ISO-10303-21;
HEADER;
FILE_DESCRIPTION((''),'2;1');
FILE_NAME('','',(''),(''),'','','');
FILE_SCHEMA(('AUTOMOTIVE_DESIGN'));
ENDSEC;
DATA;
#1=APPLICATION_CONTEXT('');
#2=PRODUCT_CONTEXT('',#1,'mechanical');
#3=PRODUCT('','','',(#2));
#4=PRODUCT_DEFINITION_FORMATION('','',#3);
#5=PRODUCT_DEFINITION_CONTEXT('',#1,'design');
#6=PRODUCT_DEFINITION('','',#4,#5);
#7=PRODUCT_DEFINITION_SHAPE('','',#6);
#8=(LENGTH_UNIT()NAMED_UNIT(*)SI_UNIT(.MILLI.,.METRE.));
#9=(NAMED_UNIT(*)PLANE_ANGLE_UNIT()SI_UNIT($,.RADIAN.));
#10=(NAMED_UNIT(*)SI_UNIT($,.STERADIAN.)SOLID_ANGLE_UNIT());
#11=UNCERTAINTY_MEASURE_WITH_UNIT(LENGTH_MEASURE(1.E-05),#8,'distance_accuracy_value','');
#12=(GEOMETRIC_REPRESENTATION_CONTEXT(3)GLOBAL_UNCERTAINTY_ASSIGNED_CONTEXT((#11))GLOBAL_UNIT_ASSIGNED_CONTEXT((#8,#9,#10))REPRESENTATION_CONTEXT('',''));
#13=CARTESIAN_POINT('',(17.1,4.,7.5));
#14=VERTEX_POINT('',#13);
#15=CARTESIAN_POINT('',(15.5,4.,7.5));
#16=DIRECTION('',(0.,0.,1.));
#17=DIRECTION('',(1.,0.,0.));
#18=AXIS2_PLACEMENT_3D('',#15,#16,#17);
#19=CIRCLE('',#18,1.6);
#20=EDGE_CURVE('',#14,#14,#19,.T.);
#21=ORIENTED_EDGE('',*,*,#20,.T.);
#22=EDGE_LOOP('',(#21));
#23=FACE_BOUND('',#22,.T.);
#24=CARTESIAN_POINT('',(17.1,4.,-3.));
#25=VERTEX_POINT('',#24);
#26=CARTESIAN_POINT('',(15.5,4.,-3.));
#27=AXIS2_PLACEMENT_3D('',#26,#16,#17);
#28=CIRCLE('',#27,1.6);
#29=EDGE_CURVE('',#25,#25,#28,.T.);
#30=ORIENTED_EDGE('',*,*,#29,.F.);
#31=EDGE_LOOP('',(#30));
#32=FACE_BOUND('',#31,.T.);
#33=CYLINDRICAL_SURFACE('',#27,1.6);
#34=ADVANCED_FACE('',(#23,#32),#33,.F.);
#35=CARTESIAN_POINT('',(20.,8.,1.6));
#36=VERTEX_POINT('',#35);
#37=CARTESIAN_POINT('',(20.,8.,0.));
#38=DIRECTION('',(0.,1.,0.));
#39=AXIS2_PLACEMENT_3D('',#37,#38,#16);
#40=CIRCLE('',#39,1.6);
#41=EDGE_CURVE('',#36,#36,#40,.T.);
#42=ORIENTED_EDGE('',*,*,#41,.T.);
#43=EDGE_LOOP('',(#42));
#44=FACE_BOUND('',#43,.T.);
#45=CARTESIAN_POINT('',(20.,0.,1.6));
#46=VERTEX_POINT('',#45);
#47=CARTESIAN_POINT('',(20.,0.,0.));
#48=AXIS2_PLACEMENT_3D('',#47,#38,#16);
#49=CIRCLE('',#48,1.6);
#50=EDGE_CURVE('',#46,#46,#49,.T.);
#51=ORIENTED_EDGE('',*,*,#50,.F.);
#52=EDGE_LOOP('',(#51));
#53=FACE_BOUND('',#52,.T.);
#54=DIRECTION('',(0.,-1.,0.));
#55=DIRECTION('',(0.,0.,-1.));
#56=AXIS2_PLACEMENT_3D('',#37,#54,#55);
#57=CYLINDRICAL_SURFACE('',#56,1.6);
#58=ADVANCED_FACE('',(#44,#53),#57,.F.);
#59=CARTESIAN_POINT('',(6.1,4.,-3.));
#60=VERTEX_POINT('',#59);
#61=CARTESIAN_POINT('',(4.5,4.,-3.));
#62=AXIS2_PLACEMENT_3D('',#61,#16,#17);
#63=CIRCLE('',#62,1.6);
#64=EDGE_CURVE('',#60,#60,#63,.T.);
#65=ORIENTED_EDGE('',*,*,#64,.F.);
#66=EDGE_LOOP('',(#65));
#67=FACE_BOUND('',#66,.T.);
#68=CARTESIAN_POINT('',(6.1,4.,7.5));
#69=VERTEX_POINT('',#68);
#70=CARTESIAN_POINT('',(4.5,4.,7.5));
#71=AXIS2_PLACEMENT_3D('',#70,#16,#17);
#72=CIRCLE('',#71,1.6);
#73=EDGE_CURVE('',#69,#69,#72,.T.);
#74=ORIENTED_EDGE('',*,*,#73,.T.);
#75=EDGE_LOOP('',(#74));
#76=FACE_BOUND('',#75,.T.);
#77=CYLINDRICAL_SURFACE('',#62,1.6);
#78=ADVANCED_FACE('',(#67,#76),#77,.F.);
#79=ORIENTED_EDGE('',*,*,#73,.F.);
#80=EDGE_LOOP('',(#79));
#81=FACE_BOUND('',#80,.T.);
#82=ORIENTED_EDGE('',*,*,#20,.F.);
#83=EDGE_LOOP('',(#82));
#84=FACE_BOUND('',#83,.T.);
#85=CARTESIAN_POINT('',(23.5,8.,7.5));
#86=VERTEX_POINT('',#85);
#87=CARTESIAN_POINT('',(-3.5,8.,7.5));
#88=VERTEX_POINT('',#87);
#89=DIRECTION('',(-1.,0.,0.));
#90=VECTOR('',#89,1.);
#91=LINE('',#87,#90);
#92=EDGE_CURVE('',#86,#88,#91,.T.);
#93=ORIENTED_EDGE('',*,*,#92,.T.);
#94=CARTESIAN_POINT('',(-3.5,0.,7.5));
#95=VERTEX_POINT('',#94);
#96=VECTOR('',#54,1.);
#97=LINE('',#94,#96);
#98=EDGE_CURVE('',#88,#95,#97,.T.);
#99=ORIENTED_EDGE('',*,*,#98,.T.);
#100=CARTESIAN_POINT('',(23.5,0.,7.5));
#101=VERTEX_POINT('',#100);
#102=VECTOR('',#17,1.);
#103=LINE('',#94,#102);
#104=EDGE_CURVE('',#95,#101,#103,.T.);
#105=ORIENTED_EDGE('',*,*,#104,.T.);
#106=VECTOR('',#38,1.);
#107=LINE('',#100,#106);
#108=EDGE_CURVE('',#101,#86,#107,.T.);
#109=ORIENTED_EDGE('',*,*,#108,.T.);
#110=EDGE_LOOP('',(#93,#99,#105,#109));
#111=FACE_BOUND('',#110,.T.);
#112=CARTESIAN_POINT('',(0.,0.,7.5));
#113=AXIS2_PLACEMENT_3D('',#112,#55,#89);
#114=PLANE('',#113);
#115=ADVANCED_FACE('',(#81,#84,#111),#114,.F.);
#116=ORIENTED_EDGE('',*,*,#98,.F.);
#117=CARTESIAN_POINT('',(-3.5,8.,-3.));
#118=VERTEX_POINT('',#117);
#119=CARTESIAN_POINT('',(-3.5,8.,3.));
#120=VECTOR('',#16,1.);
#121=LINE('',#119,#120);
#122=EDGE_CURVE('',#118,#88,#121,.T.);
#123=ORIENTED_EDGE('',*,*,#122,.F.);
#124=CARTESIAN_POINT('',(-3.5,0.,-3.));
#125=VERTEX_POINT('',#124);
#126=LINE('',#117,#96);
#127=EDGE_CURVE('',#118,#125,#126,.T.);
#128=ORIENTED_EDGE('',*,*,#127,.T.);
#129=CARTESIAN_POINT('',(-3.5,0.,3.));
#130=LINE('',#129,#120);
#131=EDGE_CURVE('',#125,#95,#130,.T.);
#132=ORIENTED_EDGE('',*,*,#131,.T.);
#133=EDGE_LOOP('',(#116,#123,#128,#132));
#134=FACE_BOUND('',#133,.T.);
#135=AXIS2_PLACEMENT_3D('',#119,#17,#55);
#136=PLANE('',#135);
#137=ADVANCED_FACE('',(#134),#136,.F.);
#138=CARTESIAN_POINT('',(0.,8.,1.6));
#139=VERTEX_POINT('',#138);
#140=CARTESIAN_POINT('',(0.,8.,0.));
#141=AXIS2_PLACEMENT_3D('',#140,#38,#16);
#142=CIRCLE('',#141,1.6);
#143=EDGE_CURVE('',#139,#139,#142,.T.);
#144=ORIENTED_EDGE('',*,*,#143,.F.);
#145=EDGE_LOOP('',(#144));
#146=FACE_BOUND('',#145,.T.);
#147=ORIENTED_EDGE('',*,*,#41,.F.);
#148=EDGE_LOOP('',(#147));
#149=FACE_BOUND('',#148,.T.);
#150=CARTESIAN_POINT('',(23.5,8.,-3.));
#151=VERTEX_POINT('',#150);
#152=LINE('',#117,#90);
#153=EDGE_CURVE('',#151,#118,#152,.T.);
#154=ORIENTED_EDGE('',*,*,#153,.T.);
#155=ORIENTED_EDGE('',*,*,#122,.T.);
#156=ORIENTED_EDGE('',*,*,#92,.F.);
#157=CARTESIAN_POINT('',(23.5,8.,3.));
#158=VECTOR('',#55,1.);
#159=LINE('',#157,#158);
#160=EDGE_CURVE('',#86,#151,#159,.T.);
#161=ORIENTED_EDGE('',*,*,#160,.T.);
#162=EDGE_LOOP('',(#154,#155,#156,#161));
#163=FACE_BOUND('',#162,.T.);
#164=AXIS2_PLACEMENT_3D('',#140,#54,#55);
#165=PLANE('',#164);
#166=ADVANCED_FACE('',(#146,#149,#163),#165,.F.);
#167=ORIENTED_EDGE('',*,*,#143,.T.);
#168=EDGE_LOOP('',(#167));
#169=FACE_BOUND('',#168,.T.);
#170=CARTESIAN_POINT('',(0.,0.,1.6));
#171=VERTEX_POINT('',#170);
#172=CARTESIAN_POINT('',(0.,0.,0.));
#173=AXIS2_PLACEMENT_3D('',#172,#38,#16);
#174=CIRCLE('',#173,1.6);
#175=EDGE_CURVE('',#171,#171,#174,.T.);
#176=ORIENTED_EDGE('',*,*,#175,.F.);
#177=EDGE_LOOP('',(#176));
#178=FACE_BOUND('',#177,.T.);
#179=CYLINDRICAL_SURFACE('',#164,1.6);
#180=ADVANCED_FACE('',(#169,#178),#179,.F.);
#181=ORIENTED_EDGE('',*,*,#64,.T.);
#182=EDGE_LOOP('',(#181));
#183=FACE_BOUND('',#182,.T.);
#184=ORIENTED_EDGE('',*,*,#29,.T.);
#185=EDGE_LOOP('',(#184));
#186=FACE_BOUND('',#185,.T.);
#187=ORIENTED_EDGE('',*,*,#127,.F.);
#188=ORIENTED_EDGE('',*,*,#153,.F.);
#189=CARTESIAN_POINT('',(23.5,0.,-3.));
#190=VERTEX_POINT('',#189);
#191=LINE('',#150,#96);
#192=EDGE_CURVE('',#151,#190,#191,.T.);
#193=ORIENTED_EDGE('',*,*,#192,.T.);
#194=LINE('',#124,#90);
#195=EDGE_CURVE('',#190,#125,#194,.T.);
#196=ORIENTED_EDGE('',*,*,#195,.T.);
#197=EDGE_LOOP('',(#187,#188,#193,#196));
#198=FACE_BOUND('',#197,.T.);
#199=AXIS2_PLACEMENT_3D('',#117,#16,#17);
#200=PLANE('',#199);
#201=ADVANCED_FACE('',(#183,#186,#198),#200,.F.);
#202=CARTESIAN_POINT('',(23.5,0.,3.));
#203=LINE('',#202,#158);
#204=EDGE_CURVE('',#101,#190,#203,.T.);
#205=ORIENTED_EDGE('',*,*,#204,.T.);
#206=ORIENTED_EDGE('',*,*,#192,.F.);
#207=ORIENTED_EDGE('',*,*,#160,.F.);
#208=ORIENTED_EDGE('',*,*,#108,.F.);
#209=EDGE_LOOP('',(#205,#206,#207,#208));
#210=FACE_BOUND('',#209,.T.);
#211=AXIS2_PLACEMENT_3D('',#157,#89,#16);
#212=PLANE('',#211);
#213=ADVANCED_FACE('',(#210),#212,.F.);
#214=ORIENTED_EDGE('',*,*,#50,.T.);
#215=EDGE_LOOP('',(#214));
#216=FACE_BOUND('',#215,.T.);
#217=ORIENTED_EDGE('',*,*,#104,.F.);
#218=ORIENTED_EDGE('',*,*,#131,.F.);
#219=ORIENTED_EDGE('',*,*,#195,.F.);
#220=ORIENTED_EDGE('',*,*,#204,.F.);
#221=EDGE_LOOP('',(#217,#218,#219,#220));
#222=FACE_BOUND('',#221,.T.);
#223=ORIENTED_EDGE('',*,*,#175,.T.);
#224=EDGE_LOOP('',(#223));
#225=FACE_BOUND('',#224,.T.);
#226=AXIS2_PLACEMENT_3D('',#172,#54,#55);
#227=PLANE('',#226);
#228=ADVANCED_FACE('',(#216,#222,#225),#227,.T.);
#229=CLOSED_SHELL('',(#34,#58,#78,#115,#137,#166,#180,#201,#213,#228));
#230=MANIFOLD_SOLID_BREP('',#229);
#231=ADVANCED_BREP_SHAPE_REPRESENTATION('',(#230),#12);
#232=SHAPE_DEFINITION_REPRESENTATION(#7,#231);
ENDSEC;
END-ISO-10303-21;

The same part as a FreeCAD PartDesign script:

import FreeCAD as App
import Part
import Sketcher
Q = App.Units.Quantity

doc = App.newDocument("Part")
body = doc.addObject("PartDesign::Body", "Body")

# Sketch on XZ plane
sketch1 = body.newObject("Sketcher::SketchObject", "Sketch")
sketch1.AttachmentSupport = (doc.getObject("XZ_Plane"), [""])
sketch1.MapMode = "FlatFace"
sketch1.addGeometry([
    Part.LineSegment(App.Vector(-3.5, -3, 0), App.Vector(-3.5, 3, 0)),  # 0
    Part.LineSegment(App.Vector(-3.5, 3, 0), App.Vector(23.5, 3, 0)),  # 1
    Part.LineSegment(App.Vector(23.5, 3, 0), App.Vector(23.5, -3, 0)),  # 2
    Part.LineSegment(App.Vector(23.5, -3, 0), App.Vector(-3.5, -3, 0)),  # 3
    Part.Circle(App.Vector(0, 0, 0), App.Vector(0, 0, 1), 1.6),  # 4
    Part.Circle(App.Vector(20, 0, 0), App.Vector(0, 0, 1), 1.6),  # 5
], False)
sketch1.addConstraint([
    Sketcher.Constraint("Coincident", 0, 2, 1, 1),
    Sketcher.Constraint("Coincident", 1, 2, 2, 1),
    Sketcher.Constraint("Coincident", 2, 2, 3, 1),
    Sketcher.Constraint("Coincident", 3, 2, 0, 1),
    Sketcher.Constraint("Vertical", 0),
    Sketcher.Constraint("Horizontal", 1),
    Sketcher.Constraint("Vertical", 2),
    Sketcher.Constraint("Horizontal", 3),
    Sketcher.Constraint("Coincident", 4, 3, -1, 1),
    Sketcher.Constraint("Equal", 4, 5),
    Sketcher.Constraint("PointOnObject", 5, 3, -1),
    Sketcher.Constraint("Diameter", 4, Q("3.2 mm")),
    Sketcher.Constraint("DistanceX", 1, 1, 1, 2, Q("27 mm")),
    Sketcher.Constraint("DistanceY", 0, 1, 0, 2, Q("6 mm")),
    Sketcher.Constraint("DistanceX", -1, 1, 5, 3, Q("20 mm")),
    Sketcher.Constraint("DistanceY", -1, 1, 0, 2, Q("3 mm")),
    Sketcher.Constraint("DistanceX", 0, 2, -1, 1, Q("3.5 mm")),
])
pad1 = body.newObject("PartDesign::Pad", "Pad")
pad1.Profile = sketch1
pad1.Length = 8
pad1.Reversed = True

# Sketch on XY plane
sketch2 = body.newObject("Sketcher::SketchObject", "Sketch001")
sketch2.AttachmentSupport = (doc.getObject("XY_Plane"), [""])
sketch2.MapMode = "FlatFace"
sketch2.AttachmentOffset = App.Placement(App.Vector(0, 0, 3), App.Rotation())
sketch2.addGeometry([
    Part.LineSegment(App.Vector(-4, 8, 0), App.Vector(-4, 0, 0)),
    Part.LineSegment(App.Vector(-4, 0, 0), App.Vector(24, 0, 0)),
    Part.LineSegment(App.Vector(24, 0, 0), App.Vector(24, 8, 0)),
    Part.LineSegment(App.Vector(24, 8, 0), App.Vector(-4, 8, 0)),
], False)
sketch2.addConstraint([
    Sketcher.Constraint("Coincident", 0, 2, 1, 1),
    Sketcher.Constraint("Coincident", 1, 2, 2, 1),
    Sketcher.Constraint("Coincident", 2, 2, 3, 1),
    Sketcher.Constraint("Coincident", 3, 2, 0, 1),
    Sketcher.Constraint("Vertical", 0),
    Sketcher.Constraint("Horizontal", 1),
    Sketcher.Constraint("Vertical", 2),
    Sketcher.Constraint("Horizontal", 3),
    Sketcher.Constraint("PointOnObject", 0, 2, -1),
    Sketcher.Constraint("DistanceX", 1, 1, 1, 2, Q("27 mm")),
    Sketcher.Constraint("DistanceY", 0, 2, 0, 1, Q("8 mm")),
    Sketcher.Constraint("DistanceX", 0, 2, -1, 1, Q("3.5 mm")),
])
pad2 = body.newObject("PartDesign::Pad", "Pad001")
pad2.Profile = sketch2
pad2.Length = 4.5

# Sketch on XY plane
sketch3 = body.newObject("Sketcher::SketchObject", "Sketch002")
sketch3.AttachmentSupport = (doc.getObject("XY_Plane"), [""])
sketch3.MapMode = "FlatFace"
sketch3.addGeometry([
    Part.Circle(App.Vector(4.5, 4, 0), App.Vector(0, 0, 1), 1.6),
    Part.Circle(App.Vector(15.5, 4, 0), App.Vector(0, 0, 1), 1.6),
], False)
sketch3.addConstraint([
    Sketcher.Constraint("Equal", 0, 1),
    Sketcher.Constraint("Horizontal", 0, 3, 1, 3),
    Sketcher.Constraint("Diameter", 0, Q("3.2 mm")),
    Sketcher.Constraint("DistanceY", -1, 1, 0, 3, Q("4 mm")),
    Sketcher.Constraint("DistanceX", 0, 3, 1, 3, Q("11 mm")),
    Sketcher.Constraint("DistanceX", -1, 1, 0, 3, Q("4.5 mm")),
])
pocket1 = body.newObject("PartDesign::Pocket", "Pocket")
pocket1.Profile = sketch3
pocket1.Type = "ThroughAll"
pocket1.Midplane = True

doc.recompute()
